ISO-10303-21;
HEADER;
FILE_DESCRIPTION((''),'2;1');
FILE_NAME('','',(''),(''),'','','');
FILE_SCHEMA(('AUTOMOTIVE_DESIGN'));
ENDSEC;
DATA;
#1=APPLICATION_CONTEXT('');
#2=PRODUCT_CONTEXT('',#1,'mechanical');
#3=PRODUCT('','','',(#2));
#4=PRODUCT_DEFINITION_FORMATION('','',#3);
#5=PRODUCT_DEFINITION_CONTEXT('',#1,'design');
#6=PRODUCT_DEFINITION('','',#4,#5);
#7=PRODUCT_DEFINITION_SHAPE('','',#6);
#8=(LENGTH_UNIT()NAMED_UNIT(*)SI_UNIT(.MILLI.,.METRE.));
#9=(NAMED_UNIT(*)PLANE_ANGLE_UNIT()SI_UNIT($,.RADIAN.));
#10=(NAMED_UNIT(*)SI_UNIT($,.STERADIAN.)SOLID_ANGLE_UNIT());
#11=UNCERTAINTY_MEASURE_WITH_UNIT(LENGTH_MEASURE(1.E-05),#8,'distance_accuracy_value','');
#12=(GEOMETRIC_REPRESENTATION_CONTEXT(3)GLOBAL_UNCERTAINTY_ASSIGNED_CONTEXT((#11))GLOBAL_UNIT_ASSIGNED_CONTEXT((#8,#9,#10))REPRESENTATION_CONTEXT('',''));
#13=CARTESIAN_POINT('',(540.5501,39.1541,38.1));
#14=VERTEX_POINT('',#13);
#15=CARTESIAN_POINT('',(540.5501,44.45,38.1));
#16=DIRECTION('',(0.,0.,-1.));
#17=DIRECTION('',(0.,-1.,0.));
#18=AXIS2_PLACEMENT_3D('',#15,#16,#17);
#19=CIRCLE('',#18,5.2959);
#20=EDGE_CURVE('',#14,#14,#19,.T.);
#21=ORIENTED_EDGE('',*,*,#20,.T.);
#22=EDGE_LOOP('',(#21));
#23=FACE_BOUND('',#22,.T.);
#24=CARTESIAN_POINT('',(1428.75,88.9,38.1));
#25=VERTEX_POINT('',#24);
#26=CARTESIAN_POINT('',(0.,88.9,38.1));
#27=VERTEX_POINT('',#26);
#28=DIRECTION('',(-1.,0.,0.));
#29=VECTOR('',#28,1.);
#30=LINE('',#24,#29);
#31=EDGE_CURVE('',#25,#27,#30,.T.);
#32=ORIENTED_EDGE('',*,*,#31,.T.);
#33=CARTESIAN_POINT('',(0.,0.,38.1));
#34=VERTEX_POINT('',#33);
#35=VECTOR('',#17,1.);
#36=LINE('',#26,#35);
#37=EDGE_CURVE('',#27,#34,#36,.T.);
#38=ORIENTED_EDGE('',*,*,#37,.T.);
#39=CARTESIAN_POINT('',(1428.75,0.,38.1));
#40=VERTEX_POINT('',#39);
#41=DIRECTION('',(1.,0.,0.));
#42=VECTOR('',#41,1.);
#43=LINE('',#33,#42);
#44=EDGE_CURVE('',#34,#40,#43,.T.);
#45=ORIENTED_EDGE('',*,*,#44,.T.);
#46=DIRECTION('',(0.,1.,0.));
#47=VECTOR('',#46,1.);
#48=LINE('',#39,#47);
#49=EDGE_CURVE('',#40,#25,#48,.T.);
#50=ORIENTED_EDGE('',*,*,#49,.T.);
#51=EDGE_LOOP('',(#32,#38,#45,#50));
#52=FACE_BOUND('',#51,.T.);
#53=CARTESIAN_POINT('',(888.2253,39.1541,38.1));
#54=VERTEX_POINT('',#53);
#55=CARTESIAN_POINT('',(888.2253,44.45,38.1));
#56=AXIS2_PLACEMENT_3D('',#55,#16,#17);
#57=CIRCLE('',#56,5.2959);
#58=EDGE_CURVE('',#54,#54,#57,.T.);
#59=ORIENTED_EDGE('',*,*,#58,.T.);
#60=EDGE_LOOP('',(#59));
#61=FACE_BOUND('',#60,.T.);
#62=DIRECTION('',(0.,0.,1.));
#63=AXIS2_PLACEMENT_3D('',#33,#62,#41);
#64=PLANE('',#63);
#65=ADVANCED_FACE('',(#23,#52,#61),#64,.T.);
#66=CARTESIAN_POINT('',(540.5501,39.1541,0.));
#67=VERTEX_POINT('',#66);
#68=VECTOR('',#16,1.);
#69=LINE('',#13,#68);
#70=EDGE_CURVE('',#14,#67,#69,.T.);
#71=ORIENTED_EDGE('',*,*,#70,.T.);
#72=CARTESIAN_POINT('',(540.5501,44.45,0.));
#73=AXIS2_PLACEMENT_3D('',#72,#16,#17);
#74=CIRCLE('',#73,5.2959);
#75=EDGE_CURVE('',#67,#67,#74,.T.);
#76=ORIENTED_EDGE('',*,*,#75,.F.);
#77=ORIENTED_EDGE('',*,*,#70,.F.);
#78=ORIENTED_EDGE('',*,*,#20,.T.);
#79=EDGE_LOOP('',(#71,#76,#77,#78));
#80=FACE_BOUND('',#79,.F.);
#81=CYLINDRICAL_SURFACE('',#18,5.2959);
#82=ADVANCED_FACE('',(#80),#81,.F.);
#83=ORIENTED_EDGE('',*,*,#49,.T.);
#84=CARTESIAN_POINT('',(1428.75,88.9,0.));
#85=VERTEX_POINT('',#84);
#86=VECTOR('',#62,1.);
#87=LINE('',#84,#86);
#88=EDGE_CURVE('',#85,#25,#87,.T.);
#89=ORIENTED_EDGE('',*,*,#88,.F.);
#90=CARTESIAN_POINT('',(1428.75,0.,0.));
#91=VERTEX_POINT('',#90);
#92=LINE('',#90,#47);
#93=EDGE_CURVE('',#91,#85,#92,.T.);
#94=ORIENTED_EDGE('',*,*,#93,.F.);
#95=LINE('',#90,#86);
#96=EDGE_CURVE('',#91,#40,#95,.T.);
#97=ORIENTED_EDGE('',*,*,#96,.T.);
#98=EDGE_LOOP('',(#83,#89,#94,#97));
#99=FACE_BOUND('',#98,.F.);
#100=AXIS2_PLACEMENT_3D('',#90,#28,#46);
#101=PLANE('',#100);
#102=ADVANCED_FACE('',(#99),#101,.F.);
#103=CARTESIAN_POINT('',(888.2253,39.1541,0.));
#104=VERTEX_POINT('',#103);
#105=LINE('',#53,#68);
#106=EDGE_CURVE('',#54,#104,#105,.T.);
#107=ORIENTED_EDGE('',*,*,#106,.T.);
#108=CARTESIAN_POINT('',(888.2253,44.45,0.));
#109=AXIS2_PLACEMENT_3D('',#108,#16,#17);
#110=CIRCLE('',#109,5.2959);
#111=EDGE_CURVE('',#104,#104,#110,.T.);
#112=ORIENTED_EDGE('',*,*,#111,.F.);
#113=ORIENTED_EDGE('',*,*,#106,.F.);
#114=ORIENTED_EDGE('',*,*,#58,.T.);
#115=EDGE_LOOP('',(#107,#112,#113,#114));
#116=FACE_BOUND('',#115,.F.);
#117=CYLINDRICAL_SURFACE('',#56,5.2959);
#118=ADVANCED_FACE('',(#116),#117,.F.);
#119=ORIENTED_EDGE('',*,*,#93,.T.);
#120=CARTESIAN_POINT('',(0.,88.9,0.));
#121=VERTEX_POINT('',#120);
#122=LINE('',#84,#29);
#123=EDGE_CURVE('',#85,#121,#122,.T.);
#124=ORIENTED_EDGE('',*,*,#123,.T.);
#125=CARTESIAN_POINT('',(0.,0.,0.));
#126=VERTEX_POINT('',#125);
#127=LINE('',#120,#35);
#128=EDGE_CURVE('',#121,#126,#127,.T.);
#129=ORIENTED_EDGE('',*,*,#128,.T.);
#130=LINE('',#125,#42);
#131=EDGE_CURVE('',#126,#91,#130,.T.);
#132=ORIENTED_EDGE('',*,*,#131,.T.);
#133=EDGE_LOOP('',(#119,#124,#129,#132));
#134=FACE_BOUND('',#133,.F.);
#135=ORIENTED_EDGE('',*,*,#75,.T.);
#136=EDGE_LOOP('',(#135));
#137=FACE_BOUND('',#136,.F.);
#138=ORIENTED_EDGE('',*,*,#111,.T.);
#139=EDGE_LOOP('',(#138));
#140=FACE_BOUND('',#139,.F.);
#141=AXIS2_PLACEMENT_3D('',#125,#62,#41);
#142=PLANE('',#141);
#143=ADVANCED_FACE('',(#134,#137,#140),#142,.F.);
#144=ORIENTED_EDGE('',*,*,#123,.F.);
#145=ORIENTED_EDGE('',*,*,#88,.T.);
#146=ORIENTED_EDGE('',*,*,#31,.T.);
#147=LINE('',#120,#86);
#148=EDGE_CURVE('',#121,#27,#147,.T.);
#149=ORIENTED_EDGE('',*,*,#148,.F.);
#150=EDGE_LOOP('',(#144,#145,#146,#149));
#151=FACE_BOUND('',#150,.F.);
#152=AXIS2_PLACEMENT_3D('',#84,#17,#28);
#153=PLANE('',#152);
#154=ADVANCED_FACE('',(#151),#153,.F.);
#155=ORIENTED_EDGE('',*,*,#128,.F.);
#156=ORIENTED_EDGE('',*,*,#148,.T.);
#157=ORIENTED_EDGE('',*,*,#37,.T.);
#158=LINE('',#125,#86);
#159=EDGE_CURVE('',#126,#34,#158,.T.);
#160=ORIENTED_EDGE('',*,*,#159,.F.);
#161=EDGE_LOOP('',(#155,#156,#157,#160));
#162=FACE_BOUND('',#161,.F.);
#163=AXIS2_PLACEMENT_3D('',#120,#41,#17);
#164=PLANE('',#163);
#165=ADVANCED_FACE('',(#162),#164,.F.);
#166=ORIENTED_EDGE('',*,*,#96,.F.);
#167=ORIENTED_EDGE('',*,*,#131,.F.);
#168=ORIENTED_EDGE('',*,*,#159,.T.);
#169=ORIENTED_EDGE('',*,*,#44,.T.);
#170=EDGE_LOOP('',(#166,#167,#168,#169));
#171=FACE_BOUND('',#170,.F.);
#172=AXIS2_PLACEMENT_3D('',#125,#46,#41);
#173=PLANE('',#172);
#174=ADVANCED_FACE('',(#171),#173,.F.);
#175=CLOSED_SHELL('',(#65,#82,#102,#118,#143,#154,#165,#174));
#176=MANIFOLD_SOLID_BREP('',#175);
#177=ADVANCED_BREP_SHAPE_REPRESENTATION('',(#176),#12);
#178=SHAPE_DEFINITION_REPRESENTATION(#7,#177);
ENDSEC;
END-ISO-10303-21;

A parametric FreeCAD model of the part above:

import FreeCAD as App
import Part
import Sketcher

V = App.Vector
Q = App.Units.Quantity

doc = App.newDocument("Part")
params = doc.addObject("Spreadsheet::Sheet", "Params")
for row, (alias, value) in enumerate([
    ("sketch1_height", "3.5 in"),
    ("sketch1_width", "56.25 in"),
    ("pad1_length", "1.5 in"),
    ("sketch2_diameter", "0.417 in"),
    ("hole_diameter", "0.417 in"),
], start=1):
    params.set(f"A{row}", alias)
    params.set(f"B{row}", "=" + value)
    params.setAlias(f"B{row}", alias)

body = doc.addObject("PartDesign::Body", "Body")

# Sketch on XY plane
sketch1 = body.newObject("Sketcher::SketchObject", "Sketch")
sketch1.AttachmentSupport = (doc.getObject("XY_Plane"), [""])
sketch1.MapMode = "FlatFace"
sketch1.addGeometry([
    Part.LineSegment(V(0, 88.9, 0), V(0, 0, 0)),
    Part.LineSegment(V(0, 0, 0), V(1428.75, 0, 0)),
    Part.LineSegment(V(1428.75, 0, 0), V(1428.75, 88.9, 0)),
    Part.LineSegment(V(1428.75, 88.9, 0), V(0, 88.9, 0)),
], False)
sketch1.addConstraint([
    Sketcher.Constraint("Coincident", 0, 2, 1, 1),
    Sketcher.Constraint("Coincident", 1, 2, 2, 1),
    Sketcher.Constraint("Coincident", 2, 2, 3, 1),
    Sketcher.Constraint("Coincident", 3, 2, 0, 1),
    Sketcher.Constraint("Vertical", 0),
    Sketcher.Constraint("Horizontal", 1),
    Sketcher.Constraint("Vertical", 2),
    Sketcher.Constraint("Horizontal", 3),
    Sketcher.Constraint("Coincident", 0, 2, -1, 1),
    Sketcher.Constraint("DistanceY", 0, 2, 0, 1, Q("3.5 in")),
    Sketcher.Constraint("DistanceX", 1, 1, 1, 2, Q("56.25 in")),
])
sketch1.setExpression("Constraints[9]", "Params.sketch1_height")
sketch1.setExpression("Constraints[10]", "Params.sketch1_width")
pad1 = body.newObject("PartDesign::Pad", "Pad")
pad1.Profile = sketch1
pad1.setExpression("Length", "Params.pad1_length")

# Sketch on XY plane
sketch2 = body.newObject("Sketcher::SketchObject", "Sketch001")
sketch2.AttachmentSupport = (doc.getObject("XY_Plane"), [""])
sketch2.MapMode = "FlatFace"
sketch2.AttachmentOffset = App.Placement(V(0, 0, 1.5 * 25.4), App.Rotation())
sketch2.addGeometry([
    Part.Circle(V(540.5501, 44.45, 0), V(0, 0, 1), 5.2959),
    Part.Circle(V(888.2253, 44.45, 0), V(0, 0, 1), 5.2959),
], False)
sketch2.addConstraint([
    Sketcher.Constraint("Equal", 0, 1),
    Sketcher.Constraint("Horizontal", 0, 3, 1, 3),
    Sketcher.Constraint("Diameter", 0, Q("0.417 in")),
    Sketcher.Constraint("DistanceY", -1, 1, 0, 3, Q("1.75 in")),
    Sketcher.Constraint("DistanceX", 0, 3, 1, 3, Q("13.688 in")),
    Sketcher.Constraint("DistanceX", -1, 1, 0, 3, Q("21.2815 in")),
])
sketch2.setExpression("Constraints[2]", "Params.sketch2_diameter")
doc.recompute()
hole = body.newObject("PartDesign::Hole", "Hole")
hole.Profile = sketch2
hole.ThreadType = "None"
hole.setExpression("Diameter", "Params.hole_diameter")
hole.DepthType = "ThroughAll"

doc.recompute()
